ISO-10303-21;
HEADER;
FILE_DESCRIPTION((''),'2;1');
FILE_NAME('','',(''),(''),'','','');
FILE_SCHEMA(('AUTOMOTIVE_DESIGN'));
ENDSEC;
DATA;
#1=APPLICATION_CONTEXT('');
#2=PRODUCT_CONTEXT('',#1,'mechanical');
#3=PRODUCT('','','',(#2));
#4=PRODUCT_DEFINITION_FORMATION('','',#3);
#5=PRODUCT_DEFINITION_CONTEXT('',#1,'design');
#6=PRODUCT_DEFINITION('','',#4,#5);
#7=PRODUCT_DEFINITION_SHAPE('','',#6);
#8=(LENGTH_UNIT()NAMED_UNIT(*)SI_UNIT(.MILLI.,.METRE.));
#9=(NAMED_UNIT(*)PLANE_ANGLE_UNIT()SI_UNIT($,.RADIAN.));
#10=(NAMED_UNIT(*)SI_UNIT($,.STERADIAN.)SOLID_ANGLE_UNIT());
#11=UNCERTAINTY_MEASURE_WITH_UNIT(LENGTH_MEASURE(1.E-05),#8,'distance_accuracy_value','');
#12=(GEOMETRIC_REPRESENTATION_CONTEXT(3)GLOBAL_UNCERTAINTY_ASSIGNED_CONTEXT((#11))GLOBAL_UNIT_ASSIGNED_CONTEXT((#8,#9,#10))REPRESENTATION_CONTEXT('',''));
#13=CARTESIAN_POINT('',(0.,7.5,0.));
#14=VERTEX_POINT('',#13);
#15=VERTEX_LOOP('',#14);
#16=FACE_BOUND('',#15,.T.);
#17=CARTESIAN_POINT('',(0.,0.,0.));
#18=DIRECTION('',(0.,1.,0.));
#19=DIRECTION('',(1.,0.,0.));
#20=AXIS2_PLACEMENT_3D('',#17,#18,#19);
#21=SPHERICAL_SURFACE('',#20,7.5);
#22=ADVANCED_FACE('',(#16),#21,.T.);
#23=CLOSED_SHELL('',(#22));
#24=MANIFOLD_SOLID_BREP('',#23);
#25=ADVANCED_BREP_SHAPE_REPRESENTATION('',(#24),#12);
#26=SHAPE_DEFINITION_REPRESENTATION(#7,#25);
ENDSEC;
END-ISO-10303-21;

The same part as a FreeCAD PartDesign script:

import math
import FreeCAD as App
import Part
import Sketcher
from FreeCAD import Vector
Q = App.Units.Quantity

doc = App.newDocument("Part")
body = doc.addObject("PartDesign::Body", "Body")

# Sketch on XY plane
sketch1 = body.newObject("Sketcher::SketchObject", "Sketch")
sketch1.AttachmentSupport = (doc.getObject("XY_Plane"), [""])
sketch1.MapMode = "FlatFace"
sketch1.addGeometry(Part.LineSegment(Vector(0, -8, 0), Vector(0, 8, 0)), False)
sketch1.addGeometry(Part.ArcOfCircle(Part.Circle(Vector(0, 0, 0), Vector(0, 0, 1), 8), math.radians(90), math.radians(270)), False)
sketch1.addConstraint(Sketcher.Constraint("Coincident", 0, 1, 1, 2))
sketch1.addConstraint(Sketcher.Constraint("Coincident", 1, 1, 0, 2))
sketch1.addConstraint(Sketcher.Constraint("Vertical", 0))
sketch1.addConstraint(Sketcher.Constraint("Coincident", 1, 3, -1, 1))
sketch1.addConstraint(Sketcher.Constraint("PointOnObject", 0, 1, -2))
sketch1.addConstraint(Sketcher.Constraint("Radius", 1, Q("7.5 mm")))
revolution = body.newObject("PartDesign::Revolution", "Revolution")
revolution.Profile = sketch1
revolution.ReferenceAxis = (sketch1, ["V_Axis"])
revolution.Angle = 360

doc.recompute()
